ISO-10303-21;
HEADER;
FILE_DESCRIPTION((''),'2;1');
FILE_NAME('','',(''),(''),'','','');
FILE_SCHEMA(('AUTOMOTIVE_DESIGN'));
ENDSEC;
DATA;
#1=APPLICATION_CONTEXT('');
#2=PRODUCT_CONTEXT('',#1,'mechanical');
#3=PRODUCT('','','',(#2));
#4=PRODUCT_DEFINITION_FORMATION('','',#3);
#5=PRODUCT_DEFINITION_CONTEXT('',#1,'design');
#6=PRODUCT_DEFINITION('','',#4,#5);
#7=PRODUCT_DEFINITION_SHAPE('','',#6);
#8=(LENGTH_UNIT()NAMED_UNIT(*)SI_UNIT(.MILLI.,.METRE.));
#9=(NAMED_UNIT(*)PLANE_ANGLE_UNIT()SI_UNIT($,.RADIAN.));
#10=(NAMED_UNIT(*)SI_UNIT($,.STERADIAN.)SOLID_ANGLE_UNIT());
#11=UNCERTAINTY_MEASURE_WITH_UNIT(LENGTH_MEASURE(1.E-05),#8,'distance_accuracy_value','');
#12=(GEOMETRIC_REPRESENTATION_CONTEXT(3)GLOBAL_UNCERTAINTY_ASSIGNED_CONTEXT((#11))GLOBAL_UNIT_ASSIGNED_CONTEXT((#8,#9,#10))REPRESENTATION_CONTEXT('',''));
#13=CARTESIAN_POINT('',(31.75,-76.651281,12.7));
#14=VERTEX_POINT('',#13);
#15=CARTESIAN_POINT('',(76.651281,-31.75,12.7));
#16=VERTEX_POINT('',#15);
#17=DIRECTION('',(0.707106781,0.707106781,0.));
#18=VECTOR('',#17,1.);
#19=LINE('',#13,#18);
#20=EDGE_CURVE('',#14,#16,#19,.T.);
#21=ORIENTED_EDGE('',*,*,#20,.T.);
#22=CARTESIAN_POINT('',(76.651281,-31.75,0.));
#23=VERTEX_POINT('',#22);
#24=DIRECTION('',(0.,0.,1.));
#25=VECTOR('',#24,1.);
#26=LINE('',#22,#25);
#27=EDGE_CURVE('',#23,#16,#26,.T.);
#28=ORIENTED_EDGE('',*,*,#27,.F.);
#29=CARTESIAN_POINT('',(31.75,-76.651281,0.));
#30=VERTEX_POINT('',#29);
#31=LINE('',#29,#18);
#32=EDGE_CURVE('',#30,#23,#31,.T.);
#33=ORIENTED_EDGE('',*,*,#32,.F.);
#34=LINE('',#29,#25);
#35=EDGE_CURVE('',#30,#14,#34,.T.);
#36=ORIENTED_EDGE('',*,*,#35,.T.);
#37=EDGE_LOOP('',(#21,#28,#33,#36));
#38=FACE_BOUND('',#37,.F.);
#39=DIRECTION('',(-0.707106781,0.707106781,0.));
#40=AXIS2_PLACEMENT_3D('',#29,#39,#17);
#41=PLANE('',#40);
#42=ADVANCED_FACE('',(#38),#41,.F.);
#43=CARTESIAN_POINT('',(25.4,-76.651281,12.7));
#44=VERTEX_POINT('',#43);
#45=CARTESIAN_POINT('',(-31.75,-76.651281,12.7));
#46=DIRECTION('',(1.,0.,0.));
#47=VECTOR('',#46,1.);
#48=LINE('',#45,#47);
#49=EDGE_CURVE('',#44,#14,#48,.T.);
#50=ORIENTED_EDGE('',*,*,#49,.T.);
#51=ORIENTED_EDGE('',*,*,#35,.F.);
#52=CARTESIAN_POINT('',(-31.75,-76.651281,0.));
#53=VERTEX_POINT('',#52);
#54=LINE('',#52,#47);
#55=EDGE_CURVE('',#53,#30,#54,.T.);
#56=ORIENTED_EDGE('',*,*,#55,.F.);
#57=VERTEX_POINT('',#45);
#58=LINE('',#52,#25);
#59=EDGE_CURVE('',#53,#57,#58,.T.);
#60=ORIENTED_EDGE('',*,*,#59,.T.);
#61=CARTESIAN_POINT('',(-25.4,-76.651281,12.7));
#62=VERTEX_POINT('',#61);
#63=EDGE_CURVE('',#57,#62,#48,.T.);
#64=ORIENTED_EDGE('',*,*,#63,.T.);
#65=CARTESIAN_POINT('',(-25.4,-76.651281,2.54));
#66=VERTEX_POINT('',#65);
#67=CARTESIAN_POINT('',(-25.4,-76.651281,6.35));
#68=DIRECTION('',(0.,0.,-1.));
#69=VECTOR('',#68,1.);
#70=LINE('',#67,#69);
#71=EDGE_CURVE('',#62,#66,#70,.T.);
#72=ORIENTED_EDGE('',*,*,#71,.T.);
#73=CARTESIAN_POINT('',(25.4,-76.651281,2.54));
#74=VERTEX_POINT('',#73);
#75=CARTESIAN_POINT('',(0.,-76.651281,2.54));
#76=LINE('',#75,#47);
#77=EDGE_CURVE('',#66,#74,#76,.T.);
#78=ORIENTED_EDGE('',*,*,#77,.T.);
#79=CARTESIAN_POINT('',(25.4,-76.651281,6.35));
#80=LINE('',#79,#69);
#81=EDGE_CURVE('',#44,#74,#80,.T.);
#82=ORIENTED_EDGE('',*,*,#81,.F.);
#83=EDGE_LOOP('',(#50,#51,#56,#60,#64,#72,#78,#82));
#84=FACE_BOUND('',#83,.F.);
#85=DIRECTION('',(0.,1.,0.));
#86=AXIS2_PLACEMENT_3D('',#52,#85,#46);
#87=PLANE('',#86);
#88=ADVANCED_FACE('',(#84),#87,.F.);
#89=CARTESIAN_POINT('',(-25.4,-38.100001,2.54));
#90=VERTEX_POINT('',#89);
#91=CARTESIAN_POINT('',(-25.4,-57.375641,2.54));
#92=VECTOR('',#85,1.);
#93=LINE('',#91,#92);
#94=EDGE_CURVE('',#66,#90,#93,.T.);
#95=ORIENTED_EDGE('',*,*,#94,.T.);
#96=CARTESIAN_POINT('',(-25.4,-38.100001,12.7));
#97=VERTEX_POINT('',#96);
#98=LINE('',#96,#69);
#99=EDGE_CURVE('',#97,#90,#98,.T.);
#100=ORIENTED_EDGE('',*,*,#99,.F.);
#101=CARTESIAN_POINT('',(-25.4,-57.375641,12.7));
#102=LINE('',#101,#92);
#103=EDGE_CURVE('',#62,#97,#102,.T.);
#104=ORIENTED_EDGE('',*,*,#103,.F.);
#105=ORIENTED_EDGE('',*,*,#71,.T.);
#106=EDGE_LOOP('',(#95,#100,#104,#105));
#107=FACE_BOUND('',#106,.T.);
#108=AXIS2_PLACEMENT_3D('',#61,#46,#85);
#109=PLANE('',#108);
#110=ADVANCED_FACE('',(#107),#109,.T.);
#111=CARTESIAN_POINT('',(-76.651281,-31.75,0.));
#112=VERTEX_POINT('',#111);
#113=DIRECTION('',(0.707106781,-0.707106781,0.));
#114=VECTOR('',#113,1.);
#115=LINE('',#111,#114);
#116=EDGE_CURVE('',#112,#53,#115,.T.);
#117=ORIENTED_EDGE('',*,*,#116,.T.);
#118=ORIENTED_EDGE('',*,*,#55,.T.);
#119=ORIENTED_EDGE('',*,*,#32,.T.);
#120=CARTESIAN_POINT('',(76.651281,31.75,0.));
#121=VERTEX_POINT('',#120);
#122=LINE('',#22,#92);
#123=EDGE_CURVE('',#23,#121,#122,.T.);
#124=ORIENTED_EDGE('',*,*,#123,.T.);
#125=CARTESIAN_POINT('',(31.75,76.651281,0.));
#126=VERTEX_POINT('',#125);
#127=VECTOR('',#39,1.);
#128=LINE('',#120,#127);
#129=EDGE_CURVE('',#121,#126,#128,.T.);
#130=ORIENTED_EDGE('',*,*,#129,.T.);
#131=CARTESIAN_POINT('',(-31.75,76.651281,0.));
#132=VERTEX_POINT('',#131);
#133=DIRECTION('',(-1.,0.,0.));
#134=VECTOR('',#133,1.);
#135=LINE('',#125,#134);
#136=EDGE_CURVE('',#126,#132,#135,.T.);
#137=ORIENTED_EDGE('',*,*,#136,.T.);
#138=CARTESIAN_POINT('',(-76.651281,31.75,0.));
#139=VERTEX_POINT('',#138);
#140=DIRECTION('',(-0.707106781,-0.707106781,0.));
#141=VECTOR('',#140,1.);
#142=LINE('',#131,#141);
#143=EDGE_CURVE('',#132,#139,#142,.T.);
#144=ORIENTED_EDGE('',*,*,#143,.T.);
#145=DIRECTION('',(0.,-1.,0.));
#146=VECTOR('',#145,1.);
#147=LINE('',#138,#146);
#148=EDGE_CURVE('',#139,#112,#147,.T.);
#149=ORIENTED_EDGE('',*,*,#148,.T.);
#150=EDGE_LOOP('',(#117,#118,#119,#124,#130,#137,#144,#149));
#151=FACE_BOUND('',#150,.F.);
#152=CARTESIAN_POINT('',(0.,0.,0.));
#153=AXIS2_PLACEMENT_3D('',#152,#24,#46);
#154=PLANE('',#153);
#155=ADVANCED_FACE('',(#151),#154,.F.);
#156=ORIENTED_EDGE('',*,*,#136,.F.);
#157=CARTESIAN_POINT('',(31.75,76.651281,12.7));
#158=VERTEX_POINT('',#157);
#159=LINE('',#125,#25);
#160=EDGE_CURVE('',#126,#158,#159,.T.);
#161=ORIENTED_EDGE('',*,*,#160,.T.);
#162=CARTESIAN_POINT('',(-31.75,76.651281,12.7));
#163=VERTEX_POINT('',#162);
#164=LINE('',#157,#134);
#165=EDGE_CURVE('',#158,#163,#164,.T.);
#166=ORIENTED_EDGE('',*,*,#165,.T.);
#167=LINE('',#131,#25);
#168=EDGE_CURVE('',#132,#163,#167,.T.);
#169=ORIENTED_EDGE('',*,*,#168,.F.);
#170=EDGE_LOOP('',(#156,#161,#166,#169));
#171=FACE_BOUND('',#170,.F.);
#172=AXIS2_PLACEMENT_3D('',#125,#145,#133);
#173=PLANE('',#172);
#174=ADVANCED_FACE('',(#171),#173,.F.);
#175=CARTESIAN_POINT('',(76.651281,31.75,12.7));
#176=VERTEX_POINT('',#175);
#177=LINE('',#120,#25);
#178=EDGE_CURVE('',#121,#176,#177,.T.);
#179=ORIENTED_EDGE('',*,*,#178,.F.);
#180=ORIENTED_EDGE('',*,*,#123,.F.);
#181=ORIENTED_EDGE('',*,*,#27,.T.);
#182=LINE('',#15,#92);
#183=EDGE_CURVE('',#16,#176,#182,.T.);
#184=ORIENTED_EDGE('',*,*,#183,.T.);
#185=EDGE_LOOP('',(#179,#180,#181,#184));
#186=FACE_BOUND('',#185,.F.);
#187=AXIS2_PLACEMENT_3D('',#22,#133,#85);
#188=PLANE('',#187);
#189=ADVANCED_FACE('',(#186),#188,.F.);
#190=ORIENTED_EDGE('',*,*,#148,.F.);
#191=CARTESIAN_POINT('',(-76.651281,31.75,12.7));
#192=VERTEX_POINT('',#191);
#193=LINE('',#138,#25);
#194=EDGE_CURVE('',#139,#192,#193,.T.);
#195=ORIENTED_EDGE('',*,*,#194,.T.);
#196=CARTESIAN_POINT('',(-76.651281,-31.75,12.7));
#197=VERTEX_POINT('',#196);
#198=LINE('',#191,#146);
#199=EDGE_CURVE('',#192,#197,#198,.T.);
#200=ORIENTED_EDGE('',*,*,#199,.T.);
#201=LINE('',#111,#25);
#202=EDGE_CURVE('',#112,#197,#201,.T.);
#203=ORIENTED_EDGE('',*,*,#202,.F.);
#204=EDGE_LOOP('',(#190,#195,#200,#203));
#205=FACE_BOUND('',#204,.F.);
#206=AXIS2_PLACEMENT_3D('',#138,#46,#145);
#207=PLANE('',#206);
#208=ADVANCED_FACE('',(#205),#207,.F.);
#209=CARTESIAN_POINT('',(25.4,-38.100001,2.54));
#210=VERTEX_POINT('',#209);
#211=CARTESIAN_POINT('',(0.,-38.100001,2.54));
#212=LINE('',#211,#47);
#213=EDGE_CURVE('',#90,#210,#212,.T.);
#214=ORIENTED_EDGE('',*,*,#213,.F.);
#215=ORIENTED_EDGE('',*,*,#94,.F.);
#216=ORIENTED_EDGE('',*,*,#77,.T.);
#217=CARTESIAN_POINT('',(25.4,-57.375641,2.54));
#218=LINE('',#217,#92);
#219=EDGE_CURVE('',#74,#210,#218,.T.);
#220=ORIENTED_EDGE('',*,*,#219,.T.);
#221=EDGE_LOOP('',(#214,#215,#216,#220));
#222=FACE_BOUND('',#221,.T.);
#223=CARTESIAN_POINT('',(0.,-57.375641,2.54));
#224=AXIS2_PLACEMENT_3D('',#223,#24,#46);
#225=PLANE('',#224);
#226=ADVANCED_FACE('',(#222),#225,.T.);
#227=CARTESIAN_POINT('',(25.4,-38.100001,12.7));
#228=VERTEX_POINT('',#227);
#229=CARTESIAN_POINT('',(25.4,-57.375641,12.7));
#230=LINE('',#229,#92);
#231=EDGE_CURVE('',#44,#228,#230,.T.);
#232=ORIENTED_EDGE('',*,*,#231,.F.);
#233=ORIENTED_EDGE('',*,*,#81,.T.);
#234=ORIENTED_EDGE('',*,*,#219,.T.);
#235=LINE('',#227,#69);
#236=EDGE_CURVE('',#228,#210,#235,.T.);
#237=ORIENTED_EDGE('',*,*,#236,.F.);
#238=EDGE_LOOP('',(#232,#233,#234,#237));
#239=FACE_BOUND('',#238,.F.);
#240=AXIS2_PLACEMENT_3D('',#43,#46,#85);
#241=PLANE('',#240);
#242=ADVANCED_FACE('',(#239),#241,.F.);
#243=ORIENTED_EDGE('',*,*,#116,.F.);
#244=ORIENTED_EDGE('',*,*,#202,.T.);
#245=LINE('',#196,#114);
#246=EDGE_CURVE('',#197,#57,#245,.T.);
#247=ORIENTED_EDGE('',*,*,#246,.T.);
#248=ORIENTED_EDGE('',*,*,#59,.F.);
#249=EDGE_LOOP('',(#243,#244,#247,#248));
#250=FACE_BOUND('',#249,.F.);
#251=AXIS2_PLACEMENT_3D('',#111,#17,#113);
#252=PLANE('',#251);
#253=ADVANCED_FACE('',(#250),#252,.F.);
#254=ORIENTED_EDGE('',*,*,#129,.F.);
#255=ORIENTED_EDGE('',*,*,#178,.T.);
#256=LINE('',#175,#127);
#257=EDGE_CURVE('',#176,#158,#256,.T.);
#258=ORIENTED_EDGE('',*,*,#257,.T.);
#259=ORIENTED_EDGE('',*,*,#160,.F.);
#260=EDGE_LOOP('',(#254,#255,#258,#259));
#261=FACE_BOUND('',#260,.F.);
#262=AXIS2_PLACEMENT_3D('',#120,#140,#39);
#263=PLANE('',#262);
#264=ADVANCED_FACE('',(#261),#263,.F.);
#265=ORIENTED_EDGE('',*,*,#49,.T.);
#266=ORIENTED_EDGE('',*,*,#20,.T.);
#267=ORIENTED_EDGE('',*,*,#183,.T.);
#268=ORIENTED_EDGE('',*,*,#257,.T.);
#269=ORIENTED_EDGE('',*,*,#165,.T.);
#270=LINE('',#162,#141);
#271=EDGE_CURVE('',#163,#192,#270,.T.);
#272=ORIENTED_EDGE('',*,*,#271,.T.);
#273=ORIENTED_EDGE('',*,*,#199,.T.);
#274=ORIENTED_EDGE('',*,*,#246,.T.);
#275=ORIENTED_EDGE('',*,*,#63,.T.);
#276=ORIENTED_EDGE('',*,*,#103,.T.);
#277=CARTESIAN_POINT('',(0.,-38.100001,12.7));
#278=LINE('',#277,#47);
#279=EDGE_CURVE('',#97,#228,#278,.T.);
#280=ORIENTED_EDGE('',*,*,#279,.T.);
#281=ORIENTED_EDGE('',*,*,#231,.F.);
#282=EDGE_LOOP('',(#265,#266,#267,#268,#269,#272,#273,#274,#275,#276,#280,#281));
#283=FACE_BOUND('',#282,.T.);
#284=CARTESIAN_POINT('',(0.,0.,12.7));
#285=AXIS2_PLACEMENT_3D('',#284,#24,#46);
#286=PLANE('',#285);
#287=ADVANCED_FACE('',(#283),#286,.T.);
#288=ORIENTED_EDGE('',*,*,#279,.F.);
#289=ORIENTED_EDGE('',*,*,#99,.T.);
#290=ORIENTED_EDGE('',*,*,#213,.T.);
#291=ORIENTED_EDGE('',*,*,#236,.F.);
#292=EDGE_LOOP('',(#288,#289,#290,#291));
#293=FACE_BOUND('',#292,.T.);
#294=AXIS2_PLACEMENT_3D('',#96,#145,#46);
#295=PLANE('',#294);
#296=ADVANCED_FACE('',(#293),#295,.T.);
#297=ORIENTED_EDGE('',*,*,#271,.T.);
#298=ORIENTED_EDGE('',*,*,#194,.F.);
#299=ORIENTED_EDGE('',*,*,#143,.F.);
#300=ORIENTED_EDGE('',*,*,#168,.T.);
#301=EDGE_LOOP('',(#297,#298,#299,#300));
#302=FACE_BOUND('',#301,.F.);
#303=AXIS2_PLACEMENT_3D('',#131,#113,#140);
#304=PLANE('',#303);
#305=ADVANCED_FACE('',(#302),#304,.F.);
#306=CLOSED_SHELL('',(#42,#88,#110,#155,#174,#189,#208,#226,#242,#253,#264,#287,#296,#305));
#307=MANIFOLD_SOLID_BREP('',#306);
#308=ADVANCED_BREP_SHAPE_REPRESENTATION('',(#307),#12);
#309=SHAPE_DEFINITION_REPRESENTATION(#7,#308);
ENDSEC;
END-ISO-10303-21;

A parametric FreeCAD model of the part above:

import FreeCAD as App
import Part
import Sketcher

V = App.Vector
Q = App.Units.Quantity

doc = App.newDocument("Part")
body = doc.addObject("PartDesign::Body", "Body")

# Sketch on XY plane
sketch1 = doc.addObject("Sketcher::SketchObject", "Sketch")
body.addObject(sketch1)
sketch1.AttachmentSupport = (doc.XY_Plane, [""])
sketch1.MapMode = "FlatFace"
sketch1.addGeometry([
    Part.LineSegment(V(77, -32, 0), V(77, 32, 0)),  # 0
    Part.LineSegment(V(77, 32, 0), V(32, 77, 0)),  # 1
    Part.LineSegment(V(32, 77, 0), V(-32, 77, 0)),  # 2
    Part.LineSegment(V(-32, 77, 0), V(-77, 32, 0)),  # 3
    Part.LineSegment(V(-77, 32, 0), V(-77, -32, 0)),  # 4
    Part.LineSegment(V(-77, -32, 0), V(-32, -77, 0)),  # 5
    Part.LineSegment(V(-32, -77, 0), V(32, -77, 0)),  # 6
    Part.LineSegment(V(32, -77, 0), V(77, -32, 0)),  # 7
], False)
sketch1.addConstraint([
    Sketcher.Constraint("Coincident", 0, 2, 1, 1),
    Sketcher.Constraint("Coincident", 1, 2, 2, 1),
    Sketcher.Constraint("Coincident", 2, 2, 3, 1),
    Sketcher.Constraint("Coincident", 3, 2, 4, 1),
    Sketcher.Constraint("Coincident", 4, 2, 5, 1),
    Sketcher.Constraint("Coincident", 5, 2, 6, 1),
    Sketcher.Constraint("Coincident", 6, 2, 7, 1),
    Sketcher.Constraint("Coincident", 7, 2, 0, 1),
    Sketcher.Constraint("Vertical", 0),
    Sketcher.Constraint("Horizontal", 2),
    Sketcher.Constraint("Vertical", 4),
    Sketcher.Constraint("Horizontal", 6),
    Sketcher.Constraint("Symmetric", 0, 2, 4, 2, -1, 1),
    Sketcher.Constraint("Symmetric", 1, 2, 5, 2, -1, 1),
    Sketcher.Constraint("Perpendicular", 1, 3),
    Sketcher.Constraint("Perpendicular", 5, 7),
    Sketcher.Constraint("Horizontal", 0, 2, 3, 2),
    Sketcher.Constraint("Horizontal", 4, 2, 7, 2),
    Sketcher.Constraint("Vertical", 2, 2, 5, 2),
    Sketcher.Constraint("Equal", 6, 0),
    Sketcher.Constraint("DistanceX", 2, 2, 2, 1, Q("2.5 in")),
    Sketcher.Constraint("Distance", 1, Q("2.5 in")),
])
pad1 = doc.addObject("PartDesign::Pad", "Pad")
body.addObject(pad1)
pad1.Profile = sketch1
pad1.Length = Q("0.5 in")

# Sketch on XY plane
sketch2 = doc.addObject("Sketcher::SketchObject", "Sketch001")
body.addObject(sketch2)
sketch2.AttachmentSupport = (doc.XY_Plane, [""])
sketch2.MapMode = "FlatFace"
sketch2.AttachmentOffset = App.Placement(V(0, 0, 0.5 * 25.4), App.Rotation())
sketch2.addGeometry([
    Part.LineSegment(V(-25, -38, 0), V(-25, -77, 0)),
    Part.LineSegment(V(-25, -77, 0), V(25, -77, 0)),
    Part.LineSegment(V(25, -77, 0), V(25, -38, 0)),
    Part.LineSegment(V(25, -38, 0), V(-25, -38, 0)),
], False)
sketch2.addConstraint([
    Sketcher.Constraint("Coincident", 0, 2, 1, 1),
    Sketcher.Constraint("Coincident", 1, 2, 2, 1),
    Sketcher.Constraint("Coincident", 2, 2, 3, 1),
    Sketcher.Constraint("Coincident", 3, 2, 0, 1),
    Sketcher.Constraint("Vertical", 0),
    Sketcher.Constraint("Horizontal", 1),
    Sketcher.Constraint("Vertical", 2),
    Sketcher.Constraint("Horizontal", 3),
    Sketcher.Constraint("DistanceX", 1, 1, 1, 2, Q("2 in")),
    Sketcher.Constraint("DistanceX", 0, 2, -1, 1, Q("1 in")),
    Sketcher.Constraint("DistanceY", 2, 2, -1, 1, Q("1.5 in")),
    Sketcher.Constraint("DistanceY", 0, 2, 0, 1, Q("38.551281 mm")),
])
pocket1 = doc.addObject("PartDesign::Pocket", "Pocket")
body.addObject(pocket1)
pocket1.Profile = sketch2
pocket1.Length = Q("0.4 in")

doc.recompute()
